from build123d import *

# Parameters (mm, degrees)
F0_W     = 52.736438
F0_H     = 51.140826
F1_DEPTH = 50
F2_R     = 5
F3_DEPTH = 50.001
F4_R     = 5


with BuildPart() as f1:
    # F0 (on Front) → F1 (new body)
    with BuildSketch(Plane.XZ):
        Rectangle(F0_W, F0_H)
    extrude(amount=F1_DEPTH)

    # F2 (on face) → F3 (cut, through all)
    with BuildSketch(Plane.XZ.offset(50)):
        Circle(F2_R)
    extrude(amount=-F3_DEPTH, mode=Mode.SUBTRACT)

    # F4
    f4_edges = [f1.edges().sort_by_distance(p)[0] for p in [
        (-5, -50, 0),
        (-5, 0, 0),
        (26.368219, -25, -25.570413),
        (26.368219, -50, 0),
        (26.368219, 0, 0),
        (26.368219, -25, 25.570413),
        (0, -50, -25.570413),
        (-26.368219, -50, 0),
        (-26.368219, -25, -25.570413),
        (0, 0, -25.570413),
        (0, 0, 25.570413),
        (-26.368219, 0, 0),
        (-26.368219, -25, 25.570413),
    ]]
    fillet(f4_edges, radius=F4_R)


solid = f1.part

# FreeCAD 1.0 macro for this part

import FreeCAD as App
import Part
import Sketcher

V = App.Vector


def edges_at(feature, points):
    """Names of the edges that pass closest to the given points."""
    edges = feature.Shape.Edges
    near = lambda p: min(range(len(edges)), key=lambda i: edges[i].distToShape(Part.Vertex(*p))[0])
    return sorted({f"Edge{near(p) + 1}" for p in points})


def add_polygon(sketch, points):
    """Adds a closed chain of lines whose ends are joined by coincident constraints."""
    first, n = sketch.GeometryCount, len(points)
    for a, b in zip(points, points[1:] + points[:1]):
        sketch.addGeometry(Part.LineSegment(App.Vector(*a, 0), App.Vector(*b, 0)), False)
    for i in range(n):
        sketch.addConstraint(Sketcher.Constraint("Coincident", first + i, 2, first + (i + 1) % n, 1))

doc = App.newDocument("Part")
body = doc.addObject("PartDesign::Body", "Body")

sketch1 = body.newObject("Sketcher::SketchObject", "Sketch")
sketch1.AttachmentSupport = (doc.getObject("XZ_Plane"), [""])
sketch1.MapMode = "FlatFace"
add_polygon(sketch1, [(-26, 26), (-26, -26), (26, -26), (26, 26)])
sketch1.addConstraint(Sketcher.Constraint("Vertical", 0))
sketch1.addConstraint(Sketcher.Constraint("Horizontal", 1))
sketch1.addConstraint(Sketcher.Constraint("Vertical", 2))
sketch1.addConstraint(Sketcher.Constraint("Horizontal", 3))
sketch1.addConstraint(Sketcher.Constraint("Symmetric", 0, 2, 2, 2, -1, 1))
sketch1.addConstraint(Sketcher.Constraint("DistanceX", 1, 1, 1, 2, 52.736438))
sketch1.addConstraint(Sketcher.Constraint("DistanceY", 0, 2, 0, 1, 51.140826))
pad1 = body.newObject("PartDesign::Pad", "Pad")
pad1.Profile = sketch1
pad1.Length = 50

sketch2 = body.newObject("Sketcher::SketchObject", "Sketch001")
sketch2.AttachmentSupport = (doc.getObject("XZ_Plane"), [""])
sketch2.MapMode = "FlatFace"
sketch2.AttachmentOffset = App.Placement(V(0, 0, 50), App.Rotation())
sketch2.addGeometry(Part.Circle(V(0, 0, 0), V(0, 0, 1), 5), False)
sketch2.addConstraint(Sketcher.Constraint("Coincident", 0, 3, -1, 1))
sketch2.addConstraint(Sketcher.Constraint("Diameter", 0, 10.0))
pocket1 = body.newObject("PartDesign::Pocket", "Pocket")
pocket1.Profile = sketch2
pocket1.Type = "ThroughAll"
doc.recompute()

fillet = body.newObject("PartDesign::Fillet", "Fillet")
fillet.Base = (pocket1, edges_at(pocket1, [
    (-5, -50, 0),
    (-5, 0, 0),
    (26.368, -25, -25.57),
    (26.368, -50, 0),
    (26.368, 0, 0),
    (26.368, -25, 25.57),
    (0, -50, -25.57),
    (-26.368, -50, 0),
    (-26.368, -25, -25.57),
    (0, 0, -25.57),
    (0, 0, 25.57),
    (-26.368, 0, 0),
    (-26.368, -25, 25.57),
]))
fillet.Radius = 5

doc.recompute()
